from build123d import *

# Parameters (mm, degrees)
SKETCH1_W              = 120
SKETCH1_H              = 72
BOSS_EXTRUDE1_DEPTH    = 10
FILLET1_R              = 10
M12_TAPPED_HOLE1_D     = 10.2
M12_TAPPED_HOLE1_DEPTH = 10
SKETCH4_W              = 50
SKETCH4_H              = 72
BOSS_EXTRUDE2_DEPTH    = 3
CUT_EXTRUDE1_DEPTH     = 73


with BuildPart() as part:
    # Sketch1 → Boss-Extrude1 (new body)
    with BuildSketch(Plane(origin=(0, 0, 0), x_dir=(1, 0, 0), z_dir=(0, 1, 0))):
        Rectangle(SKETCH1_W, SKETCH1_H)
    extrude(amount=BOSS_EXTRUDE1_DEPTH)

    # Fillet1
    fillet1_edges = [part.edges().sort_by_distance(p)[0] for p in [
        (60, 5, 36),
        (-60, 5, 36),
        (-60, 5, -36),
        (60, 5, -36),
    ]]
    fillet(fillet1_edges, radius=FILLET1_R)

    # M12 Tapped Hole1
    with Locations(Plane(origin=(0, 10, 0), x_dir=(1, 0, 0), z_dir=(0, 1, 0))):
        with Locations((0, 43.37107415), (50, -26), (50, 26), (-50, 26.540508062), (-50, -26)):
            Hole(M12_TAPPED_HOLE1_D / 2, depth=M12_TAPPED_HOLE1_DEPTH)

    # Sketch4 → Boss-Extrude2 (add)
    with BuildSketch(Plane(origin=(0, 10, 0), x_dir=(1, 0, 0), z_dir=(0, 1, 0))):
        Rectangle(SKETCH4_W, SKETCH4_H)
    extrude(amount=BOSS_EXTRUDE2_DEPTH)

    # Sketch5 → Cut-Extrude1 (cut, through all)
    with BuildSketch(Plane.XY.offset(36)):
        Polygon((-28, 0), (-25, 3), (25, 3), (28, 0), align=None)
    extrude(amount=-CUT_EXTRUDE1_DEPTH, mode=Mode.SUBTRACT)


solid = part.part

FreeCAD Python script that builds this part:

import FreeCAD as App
import Part
import Sketcher
from FreeCAD import Vector


def edges_at(feature, points):
    """Names of the edges that pass closest to the given points."""
    edges = feature.Shape.Edges
    near = lambda p: min(range(len(edges)), key=lambda i: edges[i].distToShape(Part.Vertex(*p))[0])
    return sorted({f"Edge{near(p) + 1}" for p in points})

doc = App.newDocument("Part")
body = doc.addObject("PartDesign::Body", "Body")

sketch1 = body.newObject("Sketcher::SketchObject", "Sketch")
sketch1.AttachmentSupport = (doc.getObject("XZ_Plane"), [""])
sketch1.MapMode = "FlatFace"
sketch1.addGeometry([
    Part.LineSegment(Vector(-60, -36, 0), Vector(-60, 36, 0)),
    Part.LineSegment(Vector(-60, 36, 0), Vector(60, 36, 0)),
    Part.LineSegment(Vector(60, 36, 0), Vector(60, -36, 0)),
    Part.LineSegment(Vector(60, -36, 0), Vector(-60, -36, 0)),
], False)
sketch1.addConstraint([
    Sketcher.Constraint("Coincident", 0, 2, 1, 1),
    Sketcher.Constraint("Coincident", 1, 2, 2, 1),
    Sketcher.Constraint("Coincident", 2, 2, 3, 1),
    Sketcher.Constraint("Coincident", 3, 2, 0, 1),
    Sketcher.Constraint("Vertical", 0),
    Sketcher.Constraint("Horizontal", 1),
    Sketcher.Constraint("Vertical", 2),
    Sketcher.Constraint("Horizontal", 3),
    Sketcher.Constraint("Symmetric", 0, 2, 2, 2, -1, 1),
    Sketcher.Constraint("DistanceX", 1, 1, 1, 2, 120.0),
    Sketcher.Constraint("DistanceY", 0, 1, 0, 2, 72.0),
])
pad1 = body.newObject("PartDesign::Pad", "Pad")
pad1.Profile = sketch1
pad1.Length = 10
pad1.Reversed = True
doc.recompute()

fillet = body.newObject("PartDesign::Fillet", "Fillet")
fillet.Base = (pad1, edges_at(pad1, [
    (60, 5, 36),
    (-60, 5, 36),
    (-60, 5, -36),
    (60, 5, -36),
]))
fillet.Radius = 10

sketch2 = body.newObject("Sketcher::SketchObject", "Sketch001")
sketch2.AttachmentSupport = (doc.getObject("XZ_Plane"), [""])
sketch2.MapMode = "FlatFace"
sketch2.AttachmentOffset = App.Placement(Vector(0, 0, -10), App.Rotation())
sketch2.addGeometry([
    Part.Circle(Vector(0, -43, 0), Vector(0, 0, 1), 5),
    Part.Circle(Vector(50, 26, 0), Vector(0, 0, 1), 5),
    Part.Circle(Vector(50, -26, 0), Vector(0, 0, 1), 5),
    Part.Circle(Vector(-50, -27, 0), Vector(0, 0, 1), 5),
    Part.Circle(Vector(-50, 26, 0), Vector(0, 0, 1), 5),
], False)
sketch2.addConstraint([
    Sketcher.Constraint("Equal", 0, 1),
    Sketcher.Constraint("Equal", 1, 2),
    Sketcher.Constraint("Equal", 2, 3),
    Sketcher.Constraint("Equal", 3, 4),
    Sketcher.Constraint("Symmetric", 2, 3, 4, 3, -1, 1),
    Sketcher.Constraint("Symmetric", 1, 3, 4, 3, -2),
    Sketcher.Constraint("PointOnObject", 0, 3, -2),
    Sketcher.Constraint("Vertical", 3, 3, 4, 3),
    Sketcher.Constraint("Diameter", 0, 10.2),
    Sketcher.Constraint("DistanceX", -1, 1, 1, 3, 50.0),
    Sketcher.Constraint("DistanceY", -1, 1, 1, 3, 26.0),
    Sketcher.Constraint("DistanceY", 3, 3, -1, 1, 26.540508),
    Sketcher.Constraint("DistanceY", 0, 3, -1, 1, 43.371074),
])
doc.recompute()
hole = body.newObject("PartDesign::Hole", "Hole")
hole.Profile = sketch2
hole.ThreadType = "None"
hole.Diameter = 10.2
hole.DepthType = "Dimension"
hole.Depth = 10
hole.DrillPoint = "Flat"
hole.Reversed = True

sketch3 = body.newObject("Sketcher::SketchObject", "Sketch002")
sketch3.AttachmentSupport = (doc.getObject("XZ_Plane"), [""])
sketch3.MapMode = "FlatFace"
sketch3.AttachmentOffset = App.Placement(Vector(0, 0, -10), App.Rotation())
sketch3.addGeometry([
    Part.LineSegment(Vector(-25, -36, 0), Vector(-25, 36, 0)),
    Part.LineSegment(Vector(-25, 36, 0), Vector(25, 36, 0)),
    Part.LineSegment(Vector(25, 36, 0), Vector(25, -36, 0)),
    Part.LineSegment(Vector(25, -36, 0), Vector(-25, -36, 0)),
], False)
sketch3.addConstraint([
    Sketcher.Constraint("Coincident", 0, 2, 1, 1),
    Sketcher.Constraint("Coincident", 1, 2, 2, 1),
    Sketcher.Constraint("Coincident", 2, 2, 3, 1),
    Sketcher.Constraint("Coincident", 3, 2, 0, 1),
    Sketcher.Constraint("Vertical", 0),
    Sketcher.Constraint("Horizontal", 1),
    Sketcher.Constraint("Vertical", 2),
    Sketcher.Constraint("Horizontal", 3),
    Sketcher.Constraint("Symmetric", 0, 2, 2, 2, -1, 1),
    Sketcher.Constraint("DistanceX", 1, 1, 1, 2, 50.0),
    Sketcher.Constraint("DistanceY", 0, 1, 0, 2, 72.0),
])
pad2 = body.newObject("PartDesign::Pad", "Pad001")
pad2.Profile = sketch3
pad2.Length = 3
pad2.Reversed = True

sketch4 = body.newObject("Sketcher::SketchObject", "Sketch003")
sketch4.AttachmentSupport = (doc.getObject("XY_Plane"), [""])
sketch4.MapMode = "FlatFace"
sketch4.AttachmentOffset = App.Placement(Vector(0, 0, 36), App.Rotation())
sketch4.addGeometry([
    Part.LineSegment(Vector(-25, 3, 0), Vector(-28, 0, 0)),
    Part.LineSegment(Vector(-28, 0, 0), Vector(28, 0, 0)),
    Part.LineSegment(Vector(28, 0, 0), Vector(25, 3, 0)),
    Part.LineSegment(Vector(25, 3, 0), Vector(-25, 3, 0)),
], False)
sketch4.addConstraint([
    Sketcher.Constraint("Coincident", 0, 2, 1, 1),
    Sketcher.Constraint("Coincident", 1, 2, 2, 1),
    Sketcher.Constraint("Coincident", 2, 2, 3, 1),
    Sketcher.Constraint("Coincident", 3, 2, 0, 1),
    Sketcher.Constraint("Horizontal", 1),
    Sketcher.Constraint("Horizontal", 3),
    Sketcher.Constraint("Symmetric", 0, 2, 1, 2, -1, 1),
    Sketcher.Constraint("Perpendicular", 0, 2),
    Sketcher.Constraint("Equal", 0, 2),
    Sketcher.Constraint("DistanceX", 1, 1, 1, 2, 56.0),
    Sketcher.Constraint("DistanceX", 3, 2, 3, 1, 50.0),
])
pocket1 = body.newObject("PartDesign::Pocket", "Pocket")
pocket1.Profile = sketch4
pocket1.Type = "ThroughAll"

doc.recompute()
